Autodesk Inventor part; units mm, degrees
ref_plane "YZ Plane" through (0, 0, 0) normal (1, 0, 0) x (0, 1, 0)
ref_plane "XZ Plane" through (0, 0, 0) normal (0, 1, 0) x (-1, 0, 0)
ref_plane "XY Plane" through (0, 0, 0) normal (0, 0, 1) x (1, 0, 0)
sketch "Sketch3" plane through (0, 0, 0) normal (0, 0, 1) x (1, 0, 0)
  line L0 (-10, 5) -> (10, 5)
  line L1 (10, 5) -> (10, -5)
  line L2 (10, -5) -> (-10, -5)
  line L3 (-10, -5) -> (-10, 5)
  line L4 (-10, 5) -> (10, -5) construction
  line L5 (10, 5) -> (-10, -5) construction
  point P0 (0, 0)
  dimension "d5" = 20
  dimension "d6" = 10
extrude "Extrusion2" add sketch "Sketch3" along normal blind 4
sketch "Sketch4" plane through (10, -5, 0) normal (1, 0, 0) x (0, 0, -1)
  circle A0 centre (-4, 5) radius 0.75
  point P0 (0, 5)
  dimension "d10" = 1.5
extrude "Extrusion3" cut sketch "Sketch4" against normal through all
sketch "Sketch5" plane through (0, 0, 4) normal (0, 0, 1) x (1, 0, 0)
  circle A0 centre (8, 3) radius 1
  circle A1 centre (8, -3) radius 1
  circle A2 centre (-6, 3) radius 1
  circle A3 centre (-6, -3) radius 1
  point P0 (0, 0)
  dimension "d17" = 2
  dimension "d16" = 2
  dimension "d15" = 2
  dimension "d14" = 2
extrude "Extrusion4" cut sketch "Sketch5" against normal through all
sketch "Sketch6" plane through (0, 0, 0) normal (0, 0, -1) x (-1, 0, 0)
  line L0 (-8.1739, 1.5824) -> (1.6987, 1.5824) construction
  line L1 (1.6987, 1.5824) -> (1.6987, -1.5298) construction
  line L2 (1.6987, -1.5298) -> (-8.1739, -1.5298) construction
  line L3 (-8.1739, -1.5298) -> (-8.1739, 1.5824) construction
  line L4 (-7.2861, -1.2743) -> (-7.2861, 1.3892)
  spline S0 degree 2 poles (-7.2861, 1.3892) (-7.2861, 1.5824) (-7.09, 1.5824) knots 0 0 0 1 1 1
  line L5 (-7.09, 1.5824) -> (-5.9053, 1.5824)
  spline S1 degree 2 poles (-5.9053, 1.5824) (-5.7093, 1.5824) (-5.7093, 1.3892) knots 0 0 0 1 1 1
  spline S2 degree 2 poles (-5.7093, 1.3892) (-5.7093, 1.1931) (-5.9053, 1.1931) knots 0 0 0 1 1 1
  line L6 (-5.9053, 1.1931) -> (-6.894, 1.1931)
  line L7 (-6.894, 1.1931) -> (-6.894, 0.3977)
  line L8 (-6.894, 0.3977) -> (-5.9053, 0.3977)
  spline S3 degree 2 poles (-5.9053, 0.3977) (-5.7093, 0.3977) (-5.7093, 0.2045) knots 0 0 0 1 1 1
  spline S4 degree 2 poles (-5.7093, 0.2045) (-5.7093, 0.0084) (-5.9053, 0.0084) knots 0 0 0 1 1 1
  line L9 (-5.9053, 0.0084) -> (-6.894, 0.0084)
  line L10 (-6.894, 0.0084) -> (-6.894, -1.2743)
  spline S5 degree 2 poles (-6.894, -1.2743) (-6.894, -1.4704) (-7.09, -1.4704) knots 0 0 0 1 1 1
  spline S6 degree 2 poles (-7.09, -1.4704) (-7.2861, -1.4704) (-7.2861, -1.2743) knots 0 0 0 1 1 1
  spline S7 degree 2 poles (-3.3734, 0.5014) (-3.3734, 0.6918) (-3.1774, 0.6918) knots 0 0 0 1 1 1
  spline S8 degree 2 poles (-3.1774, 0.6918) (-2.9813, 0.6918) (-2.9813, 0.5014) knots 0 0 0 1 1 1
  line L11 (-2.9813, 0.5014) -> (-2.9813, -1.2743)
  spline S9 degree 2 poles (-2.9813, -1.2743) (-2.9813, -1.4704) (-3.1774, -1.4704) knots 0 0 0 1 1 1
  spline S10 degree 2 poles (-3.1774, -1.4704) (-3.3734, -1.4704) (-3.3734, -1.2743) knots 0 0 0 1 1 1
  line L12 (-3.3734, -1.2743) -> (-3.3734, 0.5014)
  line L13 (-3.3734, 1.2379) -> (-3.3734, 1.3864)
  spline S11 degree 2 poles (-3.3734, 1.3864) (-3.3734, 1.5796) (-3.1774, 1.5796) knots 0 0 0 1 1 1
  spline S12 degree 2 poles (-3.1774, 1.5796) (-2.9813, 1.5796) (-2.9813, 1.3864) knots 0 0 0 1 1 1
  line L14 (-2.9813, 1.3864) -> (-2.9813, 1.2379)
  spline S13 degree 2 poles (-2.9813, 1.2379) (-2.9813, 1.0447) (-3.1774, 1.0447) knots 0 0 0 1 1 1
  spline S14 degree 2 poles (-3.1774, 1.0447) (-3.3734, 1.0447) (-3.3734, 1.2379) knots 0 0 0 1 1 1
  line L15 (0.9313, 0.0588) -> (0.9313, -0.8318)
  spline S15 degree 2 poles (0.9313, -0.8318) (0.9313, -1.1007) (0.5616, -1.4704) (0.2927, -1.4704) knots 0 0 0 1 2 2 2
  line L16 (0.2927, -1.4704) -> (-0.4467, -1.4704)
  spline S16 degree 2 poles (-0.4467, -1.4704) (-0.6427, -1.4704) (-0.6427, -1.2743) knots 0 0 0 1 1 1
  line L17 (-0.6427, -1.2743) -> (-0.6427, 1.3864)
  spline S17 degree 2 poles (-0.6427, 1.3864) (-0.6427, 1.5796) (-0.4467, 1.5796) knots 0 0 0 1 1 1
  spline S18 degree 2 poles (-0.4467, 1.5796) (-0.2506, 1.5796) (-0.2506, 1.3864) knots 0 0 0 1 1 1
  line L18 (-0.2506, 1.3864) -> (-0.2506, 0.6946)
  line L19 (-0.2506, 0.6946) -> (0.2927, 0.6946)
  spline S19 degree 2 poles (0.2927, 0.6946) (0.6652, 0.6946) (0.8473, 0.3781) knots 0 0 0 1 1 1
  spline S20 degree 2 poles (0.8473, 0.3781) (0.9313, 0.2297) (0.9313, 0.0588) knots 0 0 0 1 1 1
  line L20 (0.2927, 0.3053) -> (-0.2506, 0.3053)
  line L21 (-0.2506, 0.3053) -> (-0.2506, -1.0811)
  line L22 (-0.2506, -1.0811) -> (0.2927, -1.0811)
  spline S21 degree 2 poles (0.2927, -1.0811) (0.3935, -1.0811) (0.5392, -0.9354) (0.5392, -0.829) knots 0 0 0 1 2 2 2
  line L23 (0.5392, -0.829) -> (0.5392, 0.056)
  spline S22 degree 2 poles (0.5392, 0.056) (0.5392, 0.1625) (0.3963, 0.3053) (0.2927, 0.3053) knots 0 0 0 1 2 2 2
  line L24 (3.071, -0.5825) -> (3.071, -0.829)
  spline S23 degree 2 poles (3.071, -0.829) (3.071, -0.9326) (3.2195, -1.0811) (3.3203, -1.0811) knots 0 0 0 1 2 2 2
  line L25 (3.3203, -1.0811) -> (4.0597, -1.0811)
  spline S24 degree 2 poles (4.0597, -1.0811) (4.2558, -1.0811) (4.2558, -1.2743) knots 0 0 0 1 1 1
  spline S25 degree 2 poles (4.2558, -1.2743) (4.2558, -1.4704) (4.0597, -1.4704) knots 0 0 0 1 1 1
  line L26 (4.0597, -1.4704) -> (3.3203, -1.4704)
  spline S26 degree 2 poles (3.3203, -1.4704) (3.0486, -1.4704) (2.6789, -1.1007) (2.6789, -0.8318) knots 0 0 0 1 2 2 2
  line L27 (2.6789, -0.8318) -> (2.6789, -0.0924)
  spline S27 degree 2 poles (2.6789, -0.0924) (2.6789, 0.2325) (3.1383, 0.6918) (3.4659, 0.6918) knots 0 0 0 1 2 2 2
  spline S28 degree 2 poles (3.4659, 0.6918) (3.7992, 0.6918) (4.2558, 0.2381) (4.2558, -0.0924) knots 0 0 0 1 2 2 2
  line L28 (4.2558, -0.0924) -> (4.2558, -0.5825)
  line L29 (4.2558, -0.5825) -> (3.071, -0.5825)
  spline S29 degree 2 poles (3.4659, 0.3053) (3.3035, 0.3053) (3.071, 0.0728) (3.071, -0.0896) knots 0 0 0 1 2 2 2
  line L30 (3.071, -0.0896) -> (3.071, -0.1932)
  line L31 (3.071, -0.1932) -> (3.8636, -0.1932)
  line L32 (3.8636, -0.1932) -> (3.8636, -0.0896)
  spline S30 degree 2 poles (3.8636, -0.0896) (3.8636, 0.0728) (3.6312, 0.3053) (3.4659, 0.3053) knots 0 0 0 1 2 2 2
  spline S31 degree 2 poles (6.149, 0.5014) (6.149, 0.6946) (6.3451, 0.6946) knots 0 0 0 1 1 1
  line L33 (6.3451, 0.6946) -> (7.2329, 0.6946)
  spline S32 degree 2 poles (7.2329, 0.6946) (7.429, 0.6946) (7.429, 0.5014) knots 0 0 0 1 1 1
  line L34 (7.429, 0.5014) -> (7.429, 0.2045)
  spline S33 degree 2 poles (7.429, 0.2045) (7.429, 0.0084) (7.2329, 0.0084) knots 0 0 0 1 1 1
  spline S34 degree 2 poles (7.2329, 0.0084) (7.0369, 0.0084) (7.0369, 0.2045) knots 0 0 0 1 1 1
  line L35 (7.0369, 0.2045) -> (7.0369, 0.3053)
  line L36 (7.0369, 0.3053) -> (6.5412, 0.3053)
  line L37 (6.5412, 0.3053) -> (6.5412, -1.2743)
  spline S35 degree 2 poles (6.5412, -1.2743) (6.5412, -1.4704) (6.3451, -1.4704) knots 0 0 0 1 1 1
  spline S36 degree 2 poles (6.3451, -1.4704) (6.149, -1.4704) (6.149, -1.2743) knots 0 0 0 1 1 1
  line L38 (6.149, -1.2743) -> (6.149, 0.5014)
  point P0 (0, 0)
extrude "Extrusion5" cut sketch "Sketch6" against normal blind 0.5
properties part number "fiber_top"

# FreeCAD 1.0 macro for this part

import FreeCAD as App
import Part
import Sketcher

V = App.Vector
Q = App.Units.Quantity

doc = App.newDocument("Part")
body = doc.addObject("PartDesign::Body", "Body")

sketch1 = doc.addObject("Sketcher::SketchObject", "Sketch")
body.addObject(sketch1)
sketch1.AttachmentSupport = (doc.XY_Plane, [""])
sketch1.MapMode = "FlatFace"
sketch1.addGeometry([
    Part.LineSegment(V(10, 5, 0), V(-10, 5, 0)),
    Part.LineSegment(V(-10, 5, 0), V(-10, -5, 0)),
    Part.LineSegment(V(-10, -5, 0), V(10, -5, 0)),
    Part.LineSegment(V(10, -5, 0), V(10, 5, 0)),
], False)
sketch1.addConstraint([
    Sketcher.Constraint("Coincident", 0, 2, 1, 1),
    Sketcher.Constraint("Coincident", 1, 2, 2, 1),
    Sketcher.Constraint("Coincident", 2, 2, 3, 1),
    Sketcher.Constraint("Coincident", 3, 2, 0, 1),
    Sketcher.Constraint("Horizontal", 0),
    Sketcher.Constraint("Vertical", 1),
    Sketcher.Constraint("Horizontal", 2),
    Sketcher.Constraint("Vertical", 3),
    Sketcher.Constraint("Symmetric", 0, 2, 2, 2, -1, 1),
    Sketcher.Constraint("DistanceX", 0, 2, 0, 1, Q("20 mm")),
    Sketcher.Constraint("DistanceY", 1, 2, 1, 1, Q("10 mm")),
])
pad1 = doc.addObject("PartDesign::Pad", "Pad")
body.addObject(pad1)
pad1.Profile = sketch1
pad1.Length = 4

sketch2 = doc.addObject("Sketcher::SketchObject", "Sketch001")
body.addObject(sketch2)
sketch2.AttachmentSupport = (doc.YZ_Plane, [""])
sketch2.MapMode = "FlatFace"
sketch2.AttachmentOffset = App.Placement(V(0, 0, 10), App.Rotation())
sketch2.addGeometry(Part.Circle(V(0, 4, 0), V(0, 0, 1), 0.75), False)
sketch2.addConstraint([
    Sketcher.Constraint("PointOnObject", 0, 3, -2),
    Sketcher.Constraint("Diameter", 0, Q("1.5 mm")),
    Sketcher.Constraint("DistanceY", -1, 1, 0, 3, Q("4 mm")),
])
pocket1 = doc.addObject("PartDesign::Pocket", "Pocket")
body.addObject(pocket1)
pocket1.Profile = sketch2
pocket1.Type = "ThroughAll"

sketch3 = doc.addObject("Sketcher::SketchObject", "Sketch002")
body.addObject(sketch3)
sketch3.AttachmentSupport = (doc.XY_Plane, [""])
sketch3.MapMode = "FlatFace"
sketch3.AttachmentOffset = App.Placement(V(0, 0, 4), App.Rotation())
sketch3.addGeometry([
    Part.Circle(V(8, 3, 0), V(0, 0, 1), 1),
    Part.Circle(V(8, -3, 0), V(0, 0, 1), 1),
    Part.Circle(V(-6, 3, 0), V(0, 0, 1), 1),
    Part.Circle(V(-6, -3, 0), V(0, 0, 1), 1),
], False)
sketch3.addConstraint([
    Sketcher.Constraint("Equal", 0, 1),
    Sketcher.Constraint("Equal", 1, 2),
    Sketcher.Constraint("Equal", 2, 3),
    Sketcher.Constraint("Symmetric", 0, 3, 1, 3, -1),
    Sketcher.Constraint("Symmetric", 2, 3, 3, 3, -1),
    Sketcher.Constraint("Horizontal", 0, 3, 2, 3),
    Sketcher.Constraint("Diameter", 0, Q("2 mm")),
    Sketcher.Constraint("DistanceX", -1, 1, 0, 3, Q("8 mm")),
    Sketcher.Constraint("DistanceY", -1, 1, 0, 3, Q("3 mm")),
    Sketcher.Constraint("DistanceX", 2, 3, -1, 1, Q("6 mm")),
])
pocket2 = doc.addObject("PartDesign::Pocket", "Pocket001")
body.addObject(pocket2)
pocket2.Profile = sketch3
pocket2.Type = "ThroughAll"

sketch4 = doc.addObject("Sketcher::SketchObject", "Sketch003")
body.addObject(sketch4)
sketch4.AttachmentSupport = (doc.XY_Plane, [""])
sketch4.MapMode = "FlatFace"
sketch4.addGeometry([
    Part.LineSegment(V(7.2861, 1.3892, 0), V(7.2861, -1.2743, 0)),
    Part.BSplineCurve([V(7.09, -1.4704, 0), V(7.2861, -1.4704, 0), V(7.2861, -1.2743, 0)], [3, 3], [0, 1], False, 2, [1, 1, 1], False),
    Part.BSplineCurve([V(6.894, -1.2743, 0), V(6.894, -1.4704, 0), V(7.09, -1.4704, 0)], [3, 3], [0, 1], False, 2, [1, 1, 1], False),
    Part.LineSegment(V(6.894, -1.2743, 0), V(6.894, 0.0084, 0)),
    Part.LineSegment(V(6.894, 0.0084, 0), V(5.9053, 0.0084, 0)),
    Part.BSplineCurve([V(5.7093, 0.2045, 0), V(5.7093, 0.0084, 0), V(5.9053, 0.0084, 0)], [3, 3], [0, 1], False, 2, [1, 1, 1], False),
    Part.BSplineCurve([V(5.9053, 0.3977, 0), V(5.7093, 0.3977, 0), V(5.7093, 0.2045, 0)], [3, 3], [0, 1], False, 2, [1, 1, 1], False),
    Part.LineSegment(V(5.9053, 0.3977, 0), V(6.894, 0.3977, 0)),
    Part.LineSegment(V(6.894, 0.3977, 0), V(6.894, 1.1931, 0)),
    Part.LineSegment(V(6.894, 1.1931, 0), V(5.9053, 1.1931, 0)),
    Part.BSplineCurve([V(5.7093, 1.3892, 0), V(5.7093, 1.1931, 0), V(5.9053, 1.1931, 0)], [3, 3], [0, 1], False, 2, [1, 1, 1], False),
    Part.BSplineCurve([V(5.9053, 1.5824, 0), V(5.7093, 1.5824, 0), V(5.7093, 1.3892, 0)], [3, 3], [0, 1], False, 2, [1, 1, 1], False),
    Part.LineSegment(V(5.9053, 1.5824, 0), V(7.09, 1.5824, 0)),
    Part.BSplineCurve([V(7.2861, 1.3892, 0), V(7.2861, 1.5824, 0), V(7.09, 1.5824, 0)], [3, 3], [0, 1], False, 2, [1, 1, 1], False),
    Part.BSplineCurve([V(3.3734, 0.5014, 0), V(3.3734, 0.6918, 0), V(3.1774, 0.6918, 0)], [3, 3], [0, 1], False, 2, [1, 1, 1], False),
    Part.LineSegment(V(3.3734, 0.5014, 0), V(3.3734, -1.2743, 0)),
    Part.BSplineCurve([V(3.1774, -1.4704, 0), V(3.3734, -1.4704, 0), V(3.3734, -1.2743, 0)], [3, 3], [0, 1], False, 2, [1, 1, 1], False),
    Part.BSplineCurve([V(2.9813, -1.2743, 0), V(2.9813, -1.4704, 0), V(3.1774, -1.4704, 0)], [3, 3], [0, 1], False, 2, [1, 1, 1], False),
    Part.LineSegment(V(2.9813, -1.2743, 0), V(2.9813, 0.5014, 0)),
    Part.BSplineCurve([V(3.1774, 0.6918, 0), V(2.9813, 0.6918, 0), V(2.9813, 0.5014, 0)], [3, 3], [0, 1], False, 2, [1, 1, 1], False),
    Part.LineSegment(V(3.3734, 1.3864, 0), V(3.3734, 1.2379, 0)),
    Part.BSplineCurve([V(3.1774, 1.0447, 0), V(3.3734, 1.0447, 0), V(3.3734, 1.2379, 0)], [3, 3], [0, 1], False, 2, [1, 1, 1], False),
    Part.BSplineCurve([V(2.9813, 1.2379, 0), V(2.9813, 1.0447, 0), V(3.1774, 1.0447, 0)], [3, 3], [0, 1], False, 2, [1, 1, 1], False),
    Part.LineSegment(V(2.9813, 1.2379, 0), V(2.9813, 1.3864, 0)),
    Part.BSplineCurve([V(3.1774, 1.5796, 0), V(2.9813, 1.5796, 0), V(2.9813, 1.3864, 0)], [3, 3], [0, 1], False, 2, [1, 1, 1], False),
    Part.BSplineCurve([V(3.3734, 1.3864, 0), V(3.3734, 1.5796, 0), V(3.1774, 1.5796, 0)], [3, 3], [0, 1], False, 2, [1, 1, 1], False),
    Part.LineSegment(V(-0.9313, -0.8318, 0), V(-0.9313, 0.0588, 0)),
    Part.BSplineCurve([V(-0.8473, 0.3781, 0), V(-0.9313, 0.2297, 0), V(-0.9313, 0.0588, 0)], [3, 3], [0, 1], False, 2, [1, 1, 1], False),
    Part.BSplineCurve([V(-0.2927, 0.6946, 0), V(-0.6652, 0.6946, 0), V(-0.8473, 0.3781, 0)], [3, 3], [0, 1], False, 2, [1, 1, 1], False),
    Part.LineSegment(V(-0.2927, 0.6946, 0), V(0.2506, 0.6946, 0)),
    Part.LineSegment(V(0.2506, 0.6946, 0), V(0.2506, 1.3864, 0)),
    Part.BSplineCurve([V(0.4467, 1.5796, 0), V(0.2506, 1.5796, 0), V(0.2506, 1.3864, 0)], [3, 3], [0, 1], False, 2, [1, 1, 1], False),
    Part.BSplineCurve([V(0.6427, 1.3864, 0), V(0.6427, 1.5796, 0), V(0.4467, 1.5796, 0)], [3, 3], [0, 1], False, 2, [1, 1, 1], False),
    Part.LineSegment(V(0.6427, 1.3864, 0), V(0.6427, -1.2743, 0)),
    Part.BSplineCurve([V(0.4467, -1.4704, 0), V(0.6427, -1.4704, 0), V(0.6427, -1.2743, 0)], [3, 3], [0, 1], False, 2, [1, 1, 1], False),
    Part.LineSegment(V(0.4467, -1.4704, 0), V(-0.2927, -1.4704, 0)),
    Part.BSplineCurve([V(-0.9313, -0.8318, 0), V(-0.9313, -1.1007, 0), V(-0.5616, -1.4704, 0), V(-0.2927, -1.4704, 0)], [3, 1, 3], [0, 1, 2], False, 2, [1, 1, 1, 1], False),
    Part.LineSegment(V(0.2506, 0.3053, 0), V(-0.2927, 0.3053, 0)),
    Part.BSplineCurve([V(-0.5392, 0.056, 0), V(-0.5392, 0.1625, 0), V(-0.3963, 0.3053, 0), V(-0.2927, 0.3053, 0)], [3, 1, 3], [0, 1, 2], False, 2, [1, 1, 1, 1], False),
    Part.LineSegment(V(-0.5392, 0.056, 0), V(-0.5392, -0.829, 0)),
    Part.BSplineCurve([V(-0.2927, -1.0811, 0), V(-0.3935, -1.0811, 0), V(-0.5392, -0.9354, 0), V(-0.5392, -0.829, 0)], [3, 1, 3], [0, 1, 2], False, 2, [1, 1, 1, 1], False),
    Part.LineSegment(V(-0.2927, -1.0811, 0), V(0.2506, -1.0811, 0)),
    Part.LineSegment(V(0.2506, -1.0811, 0), V(0.2506, 0.3053, 0)),
    Part.LineSegment(V(-3.071, -0.829, 0), V(-3.071, -0.5825, 0)),
    Part.LineSegment(V(-3.071, -0.5825, 0), V(-4.2558, -0.5825, 0)),
    Part.LineSegment(V(-4.2558, -0.5825, 0), V(-4.2558, -0.0924, 0)),
    Part.BSplineCurve([V(-3.4659, 0.6918, 0), V(-3.7992, 0.6918, 0), V(-4.2558, 0.2381, 0), V(-4.2558, -0.0924, 0)], [3, 1, 3], [0, 1, 2], False, 2, [1, 1, 1, 1], False),
    Part.BSplineCurve([V(-2.6789, -0.0924, 0), V(-2.6789, 0.2325, 0), V(-3.1383, 0.6918, 0), V(-3.4659, 0.6918, 0)], [3, 1, 3], [0, 1, 2], False, 2, [1, 1, 1, 1], False),
    Part.LineSegment(V(-2.6789, -0.0924, 0), V(-2.6789, -0.8318, 0)),
    Part.BSplineCurve([V(-3.3203, -1.4704, 0), V(-3.0486, -1.4704, 0), V(-2.6789, -1.1007, 0), V(-2.6789, -0.8318, 0)], [3, 1, 3], [0, 1, 2], False, 2, [1, 1, 1, 1], False),
    Part.LineSegment(V(-3.3203, -1.4704, 0), V(-4.0597, -1.4704, 0)),
    Part.BSplineCurve([V(-4.2558, -1.2743, 0), V(-4.2558, -1.4704, 0), V(-4.0597, -1.4704, 0)], [3, 3], [0, 1], False, 2, [1, 1, 1], False),
    Part.BSplineCurve([V(-4.0597, -1.0811, 0), V(-4.2558, -1.0811, 0), V(-4.2558, -1.2743, 0)], [3, 3], [0, 1], False, 2, [1, 1, 1], False),
    Part.LineSegment(V(-4.0597, -1.0811, 0), V(-3.3203, -1.0811, 0)),
    Part.BSplineCurve([V(-3.071, -0.829, 0), V(-3.071, -0.9326, 0), V(-3.2195, -1.0811, 0), V(-3.3203, -1.0811, 0)], [3, 1, 3], [0, 1, 2], False, 2, [1, 1, 1, 1], False),
    Part.BSplineCurve([V(-3.4659, 0.3053, 0), V(-3.3035, 0.3053, 0), V(-3.071, 0.0728, 0), V(-3.071, -0.0896, 0)], [3, 1, 3], [0, 1, 2], False, 2, [1, 1, 1, 1], False),
    Part.BSplineCurve([V(-3.8636, -0.0896, 0), V(-3.8636, 0.0728, 0), V(-3.6312, 0.3053, 0), V(-3.4659, 0.3053, 0)], [3, 1, 3], [0, 1, 2], False, 2, [1, 1, 1, 1], False),
    Part.LineSegment(V(-3.8636, -0.0896, 0), V(-3.8636, -0.1932, 0)),
    Part.LineSegment(V(-3.8636, -0.1932, 0), V(-3.071, -0.1932, 0)),
    Part.LineSegment(V(-3.071, -0.1932, 0), V(-3.071, -0.0896, 0)),
    Part.BSplineCurve([V(-6.149, 0.5014, 0), V(-6.149, 0.6946, 0), V(-6.3451, 0.6946, 0)], [3, 3], [0, 1], False, 2, [1, 1, 1], False),
    Part.LineSegment(V(-6.149, 0.5014, 0), V(-6.149, -1.2743, 0)),
    Part.BSplineCurve([V(-6.3451, -1.4704, 0), V(-6.149, -1.4704, 0), V(-6.149, -1.2743, 0)], [3, 3], [0, 1], False, 2, [1, 1, 1], False),
    Part.BSplineCurve([V(-6.5412, -1.2743, 0), V(-6.5412, -1.4704, 0), V(-6.3451, -1.4704, 0)], [3, 3], [0, 1], False, 2, [1, 1, 1], False),
    Part.LineSegment(V(-6.5412, -1.2743, 0), V(-6.5412, 0.3053, 0)),
    Part.LineSegment(V(-6.5412, 0.3053, 0), V(-7.0369, 0.3053, 0)),
    Part.LineSegment(V(-7.0369, 0.3053, 0), V(-7.0369, 0.2045, 0)),
    Part.BSplineCurve([V(-7.2329, 0.0084, 0), V(-7.0369, 0.0084, 0), V(-7.0369, 0.2045, 0)], [3, 3], [0, 1], False, 2, [1, 1, 1], False),
    Part.BSplineCurve([V(-7.429, 0.2045, 0), V(-7.429, 0.0084, 0), V(-7.2329, 0.0084, 0)], [3, 3], [0, 1], False, 2, [1, 1, 1], False),
    Part.LineSegment(V(-7.429, 0.2045, 0), V(-7.429, 0.5014, 0)),
    Part.BSplineCurve([V(-7.2329, 0.6946, 0), V(-7.429, 0.6946, 0), V(-7.429, 0.5014, 0)], [3, 3], [0, 1], False, 2, [1, 1, 1], False),
    Part.LineSegment(V(-7.2329, 0.6946, 0), V(-6.3451, 0.6946, 0)),
], False)
sketch4.addConstraint([
    Sketcher.Constraint("Block", 1),
    Sketcher.Constraint("Block", 2),
    Sketcher.Constraint("Block", 5),
    Sketcher.Constraint("Block", 6),
    Sketcher.Constraint("Block", 10),
    Sketcher.Constraint("Block", 11),
    Sketcher.Constraint("Block", 13),
    Sketcher.Constraint("Block", 14),
    Sketcher.Constraint("Block", 16),
    Sketcher.Constraint("Block", 17),
    Sketcher.Constraint("Block", 19),
    Sketcher.Constraint("Block", 21),
    Sketcher.Constraint("Block", 22),
    Sketcher.Constraint("Block", 24),
    Sketcher.Constraint("Block", 25),
    Sketcher.Constraint("Block", 27),
    Sketcher.Constraint("Block", 28),
    Sketcher.Constraint("Block", 31),
    Sketcher.Constraint("Block", 32),
    Sketcher.Constraint("Block", 34),
    Sketcher.Constraint("Block", 36),
    Sketcher.Constraint("Block", 38),
    Sketcher.Constraint("Block", 40),
    Sketcher.Constraint("Block", 46),
    Sketcher.Constraint("Block", 47),
    Sketcher.Constraint("Block", 49),
    Sketcher.Constraint("Block", 51),
    Sketcher.Constraint("Block", 52),
    Sketcher.Constraint("Block", 54),
    Sketcher.Constraint("Block", 55),
    Sketcher.Constraint("Block", 56),
    Sketcher.Constraint("Block", 60),
    Sketcher.Constraint("Block", 62),
    Sketcher.Constraint("Block", 63),
    Sketcher.Constraint("Block", 67),
    Sketcher.Constraint("Block", 68),
    Sketcher.Constraint("Block", 70),
    Sketcher.Constraint("Coincident", 0, 2, 1, 2),
    Sketcher.Constraint("Coincident", 2, 1, 3, 1),
    Sketcher.Constraint("Coincident", 3, 2, 4, 1),
    Sketcher.Constraint("Coincident", 4, 2, 5, 2),
    Sketcher.Constraint("Coincident", 6, 1, 7, 1),
    Sketcher.Constraint("Coincident", 7, 2, 8, 1),
    Sketcher.Constraint("Coincident", 8, 2, 9, 1),
    Sketcher.Constraint("Coincident", 9, 2, 10, 2),
    Sketcher.Constraint("Coincident", 11, 1, 12, 1),
    Sketcher.Constraint("Coincident", 12, 2, 13, 2),
    Sketcher.Constraint("Coincident", 13, 1, 0, 1),
    Sketcher.Constraint("Coincident", 14, 1, 15, 1),
    Sketcher.Constraint("Coincident", 15, 2, 16, 2),
    Sketcher.Constraint("Coincident", 17, 1, 18, 1),
    Sketcher.Constraint("Coincident", 18, 2, 19, 2),
    Sketcher.Constraint("Coincident", 20, 2, 21, 2),
    Sketcher.Constraint("Coincident", 22, 1, 23, 1),
    Sketcher.Constraint("Coincident", 23, 2, 24, 2),
    Sketcher.Constraint("Coincident", 25, 1, 20, 1),
    Sketcher.Constraint("Coincident", 26, 2, 27, 2),
    Sketcher.Constraint("Coincident", 28, 1, 29, 1),
    Sketcher.Constraint("Coincident", 29, 2, 30, 1),
    Sketcher.Constraint("Coincident", 30, 2, 31, 2),
    Sketcher.Constraint("Coincident", 32, 1, 33, 1),
    Sketcher.Constraint("Coincident", 33, 2, 34, 2),
    Sketcher.Constraint("Coincident", 34, 1, 35, 1),
    Sketcher.Constraint("Coincident", 35, 2, 36, 2),
    Sketcher.Constraint("Coincident", 36, 1, 26, 1),
    Sketcher.Constraint("Coincident", 37, 2, 38, 2),
    Sketcher.Constraint("Coincident", 38, 1, 39, 1),
    Sketcher.Constraint("Coincident", 39, 2, 40, 2),
    Sketcher.Constraint("Coincident", 40, 1, 41, 1),
    Sketcher.Constraint("Coincident", 41, 2, 42, 1),
    Sketcher.Constraint("Coincident", 42, 2, 37, 1),
    Sketcher.Constraint("Coincident", 43, 2, 44, 1),
    Sketcher.Constraint("Coincident", 44, 2, 45, 1),
    Sketcher.Constraint("Coincident", 45, 2, 46, 2),
    Sketcher.Constraint("Coincident", 47, 1, 48, 1),
    Sketcher.Constraint("Coincident", 48, 2, 49, 2),
    Sketcher.Constraint("Coincident", 49, 1, 50, 1),
    Sketcher.Constraint("Coincident", 50, 2, 51, 2),
    Sketcher.Constraint("Coincident", 52, 1, 53, 1),
    Sketcher.Constraint("Coincident", 53, 2, 54, 2),
    Sketcher.Constraint("Coincident", 54, 1, 43, 1),
    Sketcher.Constraint("Coincident", 56, 1, 57, 1),
    Sketcher.Constraint("Coincident", 57, 2, 58, 1),
    Sketcher.Constraint("Coincident", 58, 2, 59, 1),
    Sketcher.Constraint("Coincident", 59, 2, 55, 2),
    Sketcher.Constraint("Coincident", 60, 1, 61, 1),
    Sketcher.Constraint("Coincident", 61, 2, 62, 2),
    Sketcher.Constraint("Coincident", 63, 1, 64, 1),
    Sketcher.Constraint("Coincident", 64, 2, 65, 1),
    Sketcher.Constraint("Coincident", 65, 2, 66, 1),
    Sketcher.Constraint("Coincident", 66, 2, 67, 2),
    Sketcher.Constraint("Coincident", 68, 1, 69, 1),
    Sketcher.Constraint("Coincident", 69, 2, 70, 2),
    Sketcher.Constraint("Coincident", 70, 1, 71, 1),
    Sketcher.Constraint("Coincident", 71, 2, 60, 2),
    Sketcher.Constraint("Vertical", 3),
    Sketcher.Constraint("Horizontal", 4),
    Sketcher.Constraint("Horizontal", 7),
    Sketcher.Constraint("Vertical", 8),
    Sketcher.Constraint("Horizontal", 9),
    Sketcher.Constraint("Horizontal", 29),
    Sketcher.Constraint("Vertical", 30),
    Sketcher.Constraint("Horizontal", 37),
    Sketcher.Constraint("Horizontal", 41),
    Sketcher.Constraint("Vertical", 42),
    Sketcher.Constraint("Vertical", 43),
    Sketcher.Constraint("Horizontal", 44),
    Sketcher.Constraint("Vertical", 45),
    Sketcher.Constraint("Vertical", 57),
    Sketcher.Constraint("Horizontal", 58),
    Sketcher.Constraint("Vertical", 59),
    Sketcher.Constraint("Vertical", 64),
    Sketcher.Constraint("Horizontal", 65),
    Sketcher.Constraint("Vertical", 66),
    Sketcher.Constraint("Horizontal", 42, 2, 64, 2),
    Sketcher.Constraint("Vertical", 3, 2, 7, 2),
    Sketcher.Constraint("Vertical", 30, 2, 41, 2),
    Sketcher.Constraint("DistanceY", 45, 1, 45, 2, Q("0.49 mm")),
    Sketcher.Constraint("DistanceY", 57, 2, 57, 1, Q("0.1036 mm")),
])
pocket3 = doc.addObject("PartDesign::Pocket", "Pocket002")
body.addObject(pocket3)
pocket3.Profile = sketch4
pocket3.Length = 0.5
pocket3.Reversed = True

doc.recompute()
